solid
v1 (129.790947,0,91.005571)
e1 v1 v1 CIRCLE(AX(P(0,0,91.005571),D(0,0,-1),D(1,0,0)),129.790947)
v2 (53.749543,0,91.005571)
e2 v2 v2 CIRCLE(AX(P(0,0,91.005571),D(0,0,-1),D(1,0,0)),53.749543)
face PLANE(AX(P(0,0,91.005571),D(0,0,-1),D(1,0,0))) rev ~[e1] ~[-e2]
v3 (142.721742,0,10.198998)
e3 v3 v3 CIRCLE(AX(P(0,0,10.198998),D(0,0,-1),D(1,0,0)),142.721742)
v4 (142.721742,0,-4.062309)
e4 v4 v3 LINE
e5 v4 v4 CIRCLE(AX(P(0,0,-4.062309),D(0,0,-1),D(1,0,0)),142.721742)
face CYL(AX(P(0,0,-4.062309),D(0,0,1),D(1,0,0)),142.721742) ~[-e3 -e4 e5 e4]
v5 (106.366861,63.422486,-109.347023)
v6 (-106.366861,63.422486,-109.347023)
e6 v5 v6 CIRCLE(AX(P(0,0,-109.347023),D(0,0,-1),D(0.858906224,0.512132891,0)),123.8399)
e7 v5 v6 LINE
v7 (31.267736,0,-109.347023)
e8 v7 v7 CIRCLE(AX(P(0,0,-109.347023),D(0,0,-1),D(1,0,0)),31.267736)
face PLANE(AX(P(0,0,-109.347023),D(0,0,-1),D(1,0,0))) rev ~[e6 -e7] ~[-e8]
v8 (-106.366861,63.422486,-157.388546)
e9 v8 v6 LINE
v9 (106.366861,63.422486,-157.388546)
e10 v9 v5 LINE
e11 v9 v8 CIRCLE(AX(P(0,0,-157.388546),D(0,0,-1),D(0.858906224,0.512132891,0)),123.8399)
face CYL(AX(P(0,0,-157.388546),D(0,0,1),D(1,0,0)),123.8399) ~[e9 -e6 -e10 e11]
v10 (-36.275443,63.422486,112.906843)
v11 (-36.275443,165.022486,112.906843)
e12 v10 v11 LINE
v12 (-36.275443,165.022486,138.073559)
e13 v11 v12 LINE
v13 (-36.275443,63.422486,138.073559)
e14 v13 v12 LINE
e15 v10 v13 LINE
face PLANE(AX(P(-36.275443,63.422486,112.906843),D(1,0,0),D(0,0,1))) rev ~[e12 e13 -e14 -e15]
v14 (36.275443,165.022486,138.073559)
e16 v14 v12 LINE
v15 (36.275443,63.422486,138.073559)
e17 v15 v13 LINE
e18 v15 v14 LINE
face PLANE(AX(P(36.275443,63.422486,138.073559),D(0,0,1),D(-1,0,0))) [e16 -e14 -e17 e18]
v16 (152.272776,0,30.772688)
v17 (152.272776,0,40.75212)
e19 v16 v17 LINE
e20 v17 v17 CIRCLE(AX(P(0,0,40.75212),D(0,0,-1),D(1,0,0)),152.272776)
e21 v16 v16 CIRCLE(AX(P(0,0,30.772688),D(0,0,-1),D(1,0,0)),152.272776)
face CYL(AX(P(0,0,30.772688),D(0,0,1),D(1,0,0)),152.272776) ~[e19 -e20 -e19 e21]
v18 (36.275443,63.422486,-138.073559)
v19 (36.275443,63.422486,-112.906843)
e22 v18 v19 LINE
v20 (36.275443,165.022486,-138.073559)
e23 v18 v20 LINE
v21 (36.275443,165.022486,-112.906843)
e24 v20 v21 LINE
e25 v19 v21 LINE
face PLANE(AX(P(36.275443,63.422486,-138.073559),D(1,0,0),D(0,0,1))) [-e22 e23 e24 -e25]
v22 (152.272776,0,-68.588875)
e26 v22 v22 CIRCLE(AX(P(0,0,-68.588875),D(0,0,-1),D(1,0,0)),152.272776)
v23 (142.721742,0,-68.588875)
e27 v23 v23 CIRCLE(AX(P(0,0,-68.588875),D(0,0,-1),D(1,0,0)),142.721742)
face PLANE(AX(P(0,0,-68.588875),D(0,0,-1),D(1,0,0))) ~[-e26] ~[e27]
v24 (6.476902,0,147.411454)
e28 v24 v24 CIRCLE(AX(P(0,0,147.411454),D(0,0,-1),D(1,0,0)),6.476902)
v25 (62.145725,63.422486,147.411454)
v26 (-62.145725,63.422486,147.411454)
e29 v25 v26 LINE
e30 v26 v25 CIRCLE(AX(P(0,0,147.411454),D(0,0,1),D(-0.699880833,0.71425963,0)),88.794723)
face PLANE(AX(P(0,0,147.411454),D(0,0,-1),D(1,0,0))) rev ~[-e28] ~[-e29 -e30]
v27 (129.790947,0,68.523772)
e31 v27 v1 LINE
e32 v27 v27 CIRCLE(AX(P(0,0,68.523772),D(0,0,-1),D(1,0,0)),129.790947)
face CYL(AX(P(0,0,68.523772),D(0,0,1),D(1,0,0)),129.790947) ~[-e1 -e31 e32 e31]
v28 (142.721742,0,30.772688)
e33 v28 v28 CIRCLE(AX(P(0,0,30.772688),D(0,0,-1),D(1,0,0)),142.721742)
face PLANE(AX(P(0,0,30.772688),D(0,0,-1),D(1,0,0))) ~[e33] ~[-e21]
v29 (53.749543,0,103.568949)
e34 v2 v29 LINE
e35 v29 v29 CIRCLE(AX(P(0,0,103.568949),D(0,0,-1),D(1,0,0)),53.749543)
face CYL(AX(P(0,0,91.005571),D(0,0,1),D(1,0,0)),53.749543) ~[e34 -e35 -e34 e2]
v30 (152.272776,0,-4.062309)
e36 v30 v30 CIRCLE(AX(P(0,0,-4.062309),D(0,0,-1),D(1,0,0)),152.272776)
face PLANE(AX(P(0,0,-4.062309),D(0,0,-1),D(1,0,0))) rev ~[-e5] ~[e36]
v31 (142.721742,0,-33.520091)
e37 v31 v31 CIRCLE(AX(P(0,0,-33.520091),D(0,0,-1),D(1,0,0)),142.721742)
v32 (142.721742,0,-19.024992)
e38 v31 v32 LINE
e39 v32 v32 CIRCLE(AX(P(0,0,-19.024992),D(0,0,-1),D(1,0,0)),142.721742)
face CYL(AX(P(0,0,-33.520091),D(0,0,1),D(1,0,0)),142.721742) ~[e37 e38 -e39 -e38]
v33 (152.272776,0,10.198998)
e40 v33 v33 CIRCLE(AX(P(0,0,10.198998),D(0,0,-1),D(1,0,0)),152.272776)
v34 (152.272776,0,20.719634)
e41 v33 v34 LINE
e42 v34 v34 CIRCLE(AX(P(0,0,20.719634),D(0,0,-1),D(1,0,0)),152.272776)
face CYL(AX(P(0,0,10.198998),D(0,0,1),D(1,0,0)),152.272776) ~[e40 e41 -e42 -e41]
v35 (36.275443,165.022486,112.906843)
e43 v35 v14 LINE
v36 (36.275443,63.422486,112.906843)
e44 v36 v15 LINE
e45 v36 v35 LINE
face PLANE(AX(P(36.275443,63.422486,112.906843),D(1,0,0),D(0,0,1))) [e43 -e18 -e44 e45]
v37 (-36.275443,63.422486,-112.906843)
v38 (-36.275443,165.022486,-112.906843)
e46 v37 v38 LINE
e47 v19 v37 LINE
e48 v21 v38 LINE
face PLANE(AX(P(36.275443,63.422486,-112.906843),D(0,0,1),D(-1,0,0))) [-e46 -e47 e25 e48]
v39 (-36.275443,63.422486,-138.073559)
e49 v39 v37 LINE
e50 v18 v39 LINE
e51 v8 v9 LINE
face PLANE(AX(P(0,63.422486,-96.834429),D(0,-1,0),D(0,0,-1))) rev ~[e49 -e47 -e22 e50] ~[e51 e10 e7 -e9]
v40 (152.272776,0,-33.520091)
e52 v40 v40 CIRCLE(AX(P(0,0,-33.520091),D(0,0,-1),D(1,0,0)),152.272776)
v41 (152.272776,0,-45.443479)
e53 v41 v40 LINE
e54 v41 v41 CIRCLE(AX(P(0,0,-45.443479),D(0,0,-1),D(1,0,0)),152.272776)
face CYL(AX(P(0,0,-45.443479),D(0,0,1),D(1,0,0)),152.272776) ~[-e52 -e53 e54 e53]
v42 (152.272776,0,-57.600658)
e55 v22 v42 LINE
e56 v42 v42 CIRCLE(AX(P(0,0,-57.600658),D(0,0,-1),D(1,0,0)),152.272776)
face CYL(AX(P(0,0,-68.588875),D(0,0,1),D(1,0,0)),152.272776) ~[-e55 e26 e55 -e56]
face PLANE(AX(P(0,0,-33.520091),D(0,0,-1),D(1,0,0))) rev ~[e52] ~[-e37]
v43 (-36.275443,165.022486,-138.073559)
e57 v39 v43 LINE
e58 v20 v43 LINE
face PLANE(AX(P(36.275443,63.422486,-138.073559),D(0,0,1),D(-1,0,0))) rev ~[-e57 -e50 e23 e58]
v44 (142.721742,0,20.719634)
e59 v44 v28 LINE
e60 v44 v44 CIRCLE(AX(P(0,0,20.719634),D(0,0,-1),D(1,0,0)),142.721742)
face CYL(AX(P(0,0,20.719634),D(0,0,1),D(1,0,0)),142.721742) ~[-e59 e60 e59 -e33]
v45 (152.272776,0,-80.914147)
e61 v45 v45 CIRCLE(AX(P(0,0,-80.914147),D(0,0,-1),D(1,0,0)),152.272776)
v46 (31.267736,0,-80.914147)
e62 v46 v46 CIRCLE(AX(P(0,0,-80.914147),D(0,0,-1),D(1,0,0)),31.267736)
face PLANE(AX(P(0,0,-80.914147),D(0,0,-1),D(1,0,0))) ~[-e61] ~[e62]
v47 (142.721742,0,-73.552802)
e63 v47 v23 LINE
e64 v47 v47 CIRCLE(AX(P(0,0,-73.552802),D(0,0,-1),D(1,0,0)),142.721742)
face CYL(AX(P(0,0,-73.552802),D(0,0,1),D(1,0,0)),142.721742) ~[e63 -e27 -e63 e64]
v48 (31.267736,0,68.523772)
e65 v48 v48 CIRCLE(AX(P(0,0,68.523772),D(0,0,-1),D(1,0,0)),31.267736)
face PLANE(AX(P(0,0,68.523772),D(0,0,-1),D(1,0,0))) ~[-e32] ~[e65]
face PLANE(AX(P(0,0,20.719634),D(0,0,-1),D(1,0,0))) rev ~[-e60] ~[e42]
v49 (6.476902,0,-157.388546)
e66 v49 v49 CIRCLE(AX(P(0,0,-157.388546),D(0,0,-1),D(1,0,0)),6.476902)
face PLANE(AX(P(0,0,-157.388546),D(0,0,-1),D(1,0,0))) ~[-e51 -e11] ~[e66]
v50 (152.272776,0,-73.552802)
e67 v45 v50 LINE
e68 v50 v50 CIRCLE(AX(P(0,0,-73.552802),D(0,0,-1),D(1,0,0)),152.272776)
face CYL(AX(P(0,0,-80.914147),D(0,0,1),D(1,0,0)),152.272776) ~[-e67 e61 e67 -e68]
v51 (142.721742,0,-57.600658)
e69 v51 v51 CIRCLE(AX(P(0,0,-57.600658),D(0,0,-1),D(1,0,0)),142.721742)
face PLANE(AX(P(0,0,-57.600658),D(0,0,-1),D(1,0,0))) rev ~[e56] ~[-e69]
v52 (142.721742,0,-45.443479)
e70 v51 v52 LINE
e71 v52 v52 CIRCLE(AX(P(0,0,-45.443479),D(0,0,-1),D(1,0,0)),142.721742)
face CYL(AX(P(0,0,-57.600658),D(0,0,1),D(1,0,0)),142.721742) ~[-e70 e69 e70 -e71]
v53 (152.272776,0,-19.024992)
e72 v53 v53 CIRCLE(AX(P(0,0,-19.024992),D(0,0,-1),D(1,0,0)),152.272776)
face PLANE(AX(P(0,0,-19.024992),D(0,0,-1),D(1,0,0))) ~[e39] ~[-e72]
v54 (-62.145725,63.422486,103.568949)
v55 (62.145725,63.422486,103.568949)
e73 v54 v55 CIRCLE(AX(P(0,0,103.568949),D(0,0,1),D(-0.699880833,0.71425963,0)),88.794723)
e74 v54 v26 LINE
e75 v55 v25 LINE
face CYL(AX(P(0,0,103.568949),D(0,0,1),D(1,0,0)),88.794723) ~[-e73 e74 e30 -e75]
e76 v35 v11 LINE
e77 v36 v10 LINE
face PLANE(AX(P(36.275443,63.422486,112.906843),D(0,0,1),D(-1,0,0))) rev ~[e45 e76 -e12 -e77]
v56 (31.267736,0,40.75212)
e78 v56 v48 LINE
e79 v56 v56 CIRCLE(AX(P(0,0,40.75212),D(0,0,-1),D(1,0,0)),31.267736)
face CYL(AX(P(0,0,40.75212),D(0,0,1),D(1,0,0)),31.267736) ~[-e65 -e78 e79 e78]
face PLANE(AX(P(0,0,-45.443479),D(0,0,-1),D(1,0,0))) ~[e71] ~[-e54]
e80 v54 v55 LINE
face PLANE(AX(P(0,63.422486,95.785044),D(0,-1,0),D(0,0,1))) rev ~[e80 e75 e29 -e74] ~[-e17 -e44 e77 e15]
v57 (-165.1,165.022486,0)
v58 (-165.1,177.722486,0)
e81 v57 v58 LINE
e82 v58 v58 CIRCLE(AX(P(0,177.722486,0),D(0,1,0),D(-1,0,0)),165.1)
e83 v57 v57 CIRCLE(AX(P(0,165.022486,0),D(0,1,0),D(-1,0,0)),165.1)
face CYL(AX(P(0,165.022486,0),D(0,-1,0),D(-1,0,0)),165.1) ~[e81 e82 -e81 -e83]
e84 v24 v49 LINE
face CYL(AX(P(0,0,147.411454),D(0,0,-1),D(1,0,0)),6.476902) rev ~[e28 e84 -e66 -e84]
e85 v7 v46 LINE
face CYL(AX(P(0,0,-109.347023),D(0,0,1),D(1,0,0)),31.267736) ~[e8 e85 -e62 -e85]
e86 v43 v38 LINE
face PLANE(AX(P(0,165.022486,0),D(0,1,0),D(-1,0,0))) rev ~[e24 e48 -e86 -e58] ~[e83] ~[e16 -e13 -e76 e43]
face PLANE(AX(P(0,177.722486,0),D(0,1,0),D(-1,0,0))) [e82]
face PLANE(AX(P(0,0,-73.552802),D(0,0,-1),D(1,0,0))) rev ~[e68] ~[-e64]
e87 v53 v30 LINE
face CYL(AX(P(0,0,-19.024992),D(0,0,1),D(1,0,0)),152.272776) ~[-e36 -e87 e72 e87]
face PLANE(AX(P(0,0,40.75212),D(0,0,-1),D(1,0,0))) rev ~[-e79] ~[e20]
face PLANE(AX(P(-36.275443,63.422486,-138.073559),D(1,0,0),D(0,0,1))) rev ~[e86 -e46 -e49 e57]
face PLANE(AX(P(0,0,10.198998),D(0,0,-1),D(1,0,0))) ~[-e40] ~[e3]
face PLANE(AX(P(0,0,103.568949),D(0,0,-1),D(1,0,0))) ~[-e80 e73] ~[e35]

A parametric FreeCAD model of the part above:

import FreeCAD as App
import Part
import Sketcher

V = App.Vector
Q = App.Units.Quantity


def add_polygon(sketch, points):
    """Adds a closed chain of lines whose ends are joined by coincident constraints."""
    first, n = sketch.GeometryCount, len(points)
    for a, b in zip(points, points[1:] + points[:1]):
        sketch.addGeometry(Part.LineSegment(App.Vector(*a, 0), App.Vector(*b, 0)), False)
    for i in range(n):
        sketch.addConstraint(Sketcher.Constraint("Coincident", first + i, 2, first + (i + 1) % n, 1))

doc = App.newDocument("Part")
body = doc.addObject("PartDesign::Body", "Body")

sketch1 = body.newObject("Sketcher::SketchObject", "Sketch")
sketch1.AttachmentSupport = (doc.getObject("XZ_Plane"), [""])
sketch1.MapMode = "FlatFace"
add_polygon(sketch1, [(88.8, 147.4), (6.5, 147.4), (6.5, -157.4), (123.8, -157.4), (123.8, -109.3), (31.3, -109.3), (31.3, -80.9), (152.3, -80.9), (152.3, -73.6), (142.7, -73.6), (142.7, -68.6), (152.3, -68.6), (152.3, -57.6), (142.7, -57.6), (142.7, -45.4), (152.3, -45.4), (152.3, -33.5), (142.7, -33.5), (142.7, -19), (152.3, -19), (152.3, -4.1), (142.7, -4.1), (142.7, 10.2), (152.3, 10.2), (152.3, 20.7), (142.7, 20.7), (142.7, 30.8), (152.3, 30.8), (152.3, 40.8), (31.3, 40.8), (31.3, 68.5), (129.8, 68.5), (129.8, 91), (53.7, 91), (53.7, 103.6), (88.8, 103.6)])
sketch1.addConstraint(Sketcher.Constraint("Horizontal", 0))
sketch1.addConstraint(Sketcher.Constraint("Vertical", 1))
sketch1.addConstraint(Sketcher.Constraint("Horizontal", 2))
sketch1.addConstraint(Sketcher.Constraint("Vertical", 3))
sketch1.addConstraint(Sketcher.Constraint("Horizontal", 4))
sketch1.addConstraint(Sketcher.Constraint("Vertical", 5))
sketch1.addConstraint(Sketcher.Constraint("Horizontal", 6))
sketch1.addConstraint(Sketcher.Constraint("Vertical", 7))
sketch1.addConstraint(Sketcher.Constraint("Horizontal", 8))
sketch1.addConstraint(Sketcher.Constraint("Vertical", 9))
sketch1.addConstraint(Sketcher.Constraint("Horizontal", 10))
sketch1.addConstraint(Sketcher.Constraint("Vertical", 11))
sketch1.addConstraint(Sketcher.Constraint("Horizontal", 12))
sketch1.addConstraint(Sketcher.Constraint("Vertical", 13))
sketch1.addConstraint(Sketcher.Constraint("Horizontal", 14))
sketch1.addConstraint(Sketcher.Constraint("Vertical", 15))
sketch1.addConstraint(Sketcher.Constraint("Horizontal", 16))
sketch1.addConstraint(Sketcher.Constraint("Vertical", 17))
sketch1.addConstraint(Sketcher.Constraint("Horizontal", 18))
sketch1.addConstraint(Sketcher.Constraint("Vertical", 19))
sketch1.addConstraint(Sketcher.Constraint("Horizontal", 20))
sketch1.addConstraint(Sketcher.Constraint("Vertical", 21))
sketch1.addConstraint(Sketcher.Constraint("Horizontal", 22))
sketch1.addConstraint(Sketcher.Constraint("Vertical", 23))
sketch1.addConstraint(Sketcher.Constraint("Horizontal", 24))
sketch1.addConstraint(Sketcher.Constraint("Vertical", 25))
sketch1.addConstraint(Sketcher.Constraint("Horizontal", 26))
sketch1.addConstraint(Sketcher.Constraint("Vertical", 27))
sketch1.addConstraint(Sketcher.Constraint("Horizontal", 28))
sketch1.addConstraint(Sketcher.Constraint("Vertical", 29))
sketch1.addConstraint(Sketcher.Constraint("Horizontal", 30))
sketch1.addConstraint(Sketcher.Constraint("Vertical", 31))
sketch1.addConstraint(Sketcher.Constraint("Horizontal", 32))
sketch1.addConstraint(Sketcher.Constraint("Vertical", 33))
sketch1.addConstraint(Sketcher.Constraint("Horizontal", 34))
sketch1.addConstraint(Sketcher.Constraint("Vertical", 35))
sketch1.addConstraint(Sketcher.Constraint("Vertical", 7, 2, 10, 2))
sketch1.addConstraint(Sketcher.Constraint("Vertical", 9, 2, 12, 2))
sketch1.addConstraint(Sketcher.Constraint("Vertical", 11, 2, 14, 2))
sketch1.addConstraint(Sketcher.Constraint("Vertical", 13, 2, 16, 2))
sketch1.addConstraint(Sketcher.Constraint("Vertical", 15, 2, 18, 2))
sketch1.addConstraint(Sketcher.Constraint("Vertical", 17, 2, 20, 2))
sketch1.addConstraint(Sketcher.Constraint("Vertical", 19, 2, 22, 2))
sketch1.addConstraint(Sketcher.Constraint("Vertical", 21, 2, 24, 2))
sketch1.addConstraint(Sketcher.Constraint("Vertical", 23, 2, 26, 2))
sketch1.addConstraint(Sketcher.Constraint("Vertical", 5, 2, 28, 2))
sketch1.addConstraint(Sketcher.Constraint("DistanceY", 1, 2, 1, 1, Q("12 in")))
sketch1.addConstraint(Sketcher.Constraint("DistanceX", 2, 1, 2, 2, 117.362998))
sketch1.addConstraint(Sketcher.Constraint("DistanceY", 17, 1, 17, 2, 14.495099))
sketch1.addConstraint(Sketcher.Constraint("DistanceY", 31, 1, 31, 2, 22.481799))
sketch1.addConstraint(Sketcher.Constraint("DistanceX", 0, 2, 0, 1, 82.317821))
sketch1.addConstraint(Sketcher.Constraint("DistanceX", 6, 1, 6, 2, 121.00504))
sketch1.addConstraint(Sketcher.Constraint("DistanceX", 30, 1, 30, 2, 98.523211))
sketch1.addConstraint(Sketcher.Constraint("DistanceX", 34, 1, 34, 2, 35.04518))
sketch1.addConstraint(Sketcher.Constraint("DistanceY", 13, 1, 13, 2, 12.157179))
sketch1.addConstraint(Sketcher.Constraint("DistanceY", 15, 1, 15, 2, 11.923388))
sketch1.addConstraint(Sketcher.Constraint("DistanceY", 27, 1, 27, 2, 9.979432))
sketch1.addConstraint(Sketcher.Constraint("DistanceY", 29, 1, 29, 2, 27.771652))
sketch1.addConstraint(Sketcher.Constraint("DistanceX", -1, 1, 2, 2, 123.8399))
sketch1.addConstraint(Sketcher.Constraint("DistanceY", 7, 2, -1, 1, 73.552802))
sketch1.addConstraint(Sketcher.Constraint("DistanceY", 1, 2, 5, 2, 76.474399))
sketch1.addConstraint(Sketcher.Constraint("DistanceX", 4, 2, 4, 1, 92.572164))
sketch1.addConstraint(Sketcher.Constraint("DistanceX", 8, 2, 8, 1, 9.551034))
sketch1.addConstraint(Sketcher.Constraint("DistanceY", 3, 1, 3, 2, 48.041523))
sketch1.addConstraint(Sketcher.Constraint("DistanceY", 7, 1, 7, 2, 7.361345))
sketch1.addConstraint(Sketcher.Constraint("DistanceY", 9, 1, 9, 2, 4.963927))
sketch1.addConstraint(Sketcher.Constraint("DistanceY", 11, 1, 11, 2, 10.988217))
sketch1.addConstraint(Sketcher.Constraint("DistanceY", 19, 1, 19, 2, 14.962683))
sketch1.addConstraint(Sketcher.Constraint("DistanceY", 21, 1, 21, 2, 14.261307))
sketch1.addConstraint(Sketcher.Constraint("DistanceY", 23, 1, 23, 2, 10.520636))
sketch1.addConstraint(Sketcher.Constraint("DistanceY", 25, 1, 25, 2, 10.053054))
sketch1.addConstraint(Sketcher.Constraint("DistanceY", 33, 1, 33, 2, 12.563378))
revolution = body.newObject("PartDesign::Revolution", "Revolution")
revolution.Profile = sketch1
revolution.ReferenceAxis = (sketch1, ["V_Axis"])
revolution.Angle = 360

sketch2 = body.newObject("Sketcher::SketchObject", "Sketch001")
sketch2.AttachmentSupport = (doc.getObject("YZ_Plane"), [""])
sketch2.MapMode = "FlatFace"
add_polygon(sketch2, [(63, 199), (63, 96), (159, 96), (159, 199)])
add_polygon(sketch2, [(159, -97), (63, -97), (63, -198), (159, -197)])
sketch2.addConstraint(Sketcher.Constraint("Vertical", 0))
sketch2.addConstraint(Sketcher.Constraint("Horizontal", 1))
sketch2.addConstraint(Sketcher.Constraint("Vertical", 2))
sketch2.addConstraint(Sketcher.Constraint("Horizontal", 3))
sketch2.addConstraint(Sketcher.Constraint("Horizontal", 4))
sketch2.addConstraint(Sketcher.Constraint("Vertical", 5))
sketch2.addConstraint(Sketcher.Constraint("Vertical", 7))
sketch2.addConstraint(Sketcher.Constraint("Vertical", 3, 2, 4, 2))
sketch2.addConstraint(Sketcher.Constraint("Vertical", 2, 2, 6, 2))
sketch2.addConstraint(Sketcher.Constraint("DistanceX", 1, 1, 1, 2, 95.933378))
sketch2.addConstraint(Sketcher.Constraint("DistanceY", 5, 2, 0, 2, 294.0908))
sketch2.addConstraint(Sketcher.Constraint("DistanceY", 0, 2, 0, 1, 103.010424))
sketch2.addConstraint(Sketcher.Constraint("DistanceY", 5, 2, 5, 1, 101.471327))
sketch2.addConstraint(Sketcher.Constraint("DistanceY", 7, 1, 7, 2, 99.867366))
sketch2.addConstraint(Sketcher.Constraint("DistanceY", -1, 1, 2, 2, 198.795468))
sketch2.addConstraint(Sketcher.Constraint("DistanceX", -1, 1, 0, 2, 63.422486))
pocket1 = body.newObject("PartDesign::Pocket", "Pocket")
pocket1.Profile = sketch2
pocket1.Length = Q("10 in")
pocket1.Midplane = True

sketch3 = body.newObject("Sketcher::SketchObject", "Sketch002")
sketch3.AttachmentSupport = (doc.getObject("XZ_Plane"), [""])
sketch3.MapMode = "FlatFace"
sketch3.AttachmentOffset = App.Placement(V(0, 0, -63.422486), App.Rotation())
add_polygon(sketch3, [(36, 138), (36, 113), (-36, 113), (-36, 138)])
add_polygon(sketch3, [(36, -113), (36, -138), (-36, -138), (-36, -113)])
sketch3.addConstraint(Sketcher.Constraint("Vertical", 0))
sketch3.addConstraint(Sketcher.Constraint("Horizontal", 1))
sketch3.addConstraint(Sketcher.Constraint("Vertical", 2))
sketch3.addConstraint(Sketcher.Constraint("Horizontal", 3))
sketch3.addConstraint(Sketcher.Constraint("Vertical", 4))
sketch3.addConstraint(Sketcher.Constraint("Horizontal", 5))
sketch3.addConstraint(Sketcher.Constraint("Vertical", 6))
sketch3.addConstraint(Sketcher.Constraint("Horizontal", 7))
sketch3.addConstraint(Sketcher.Constraint("Symmetric", 2, 2, 4, 2, -1, 1))
sketch3.addConstraint(Sketcher.Constraint("Symmetric", 0, 2, 6, 2, -1, 1))
sketch3.addConstraint(Sketcher.Constraint("Vertical", 3, 2, 4, 2))
sketch3.addConstraint(Sketcher.Constraint("DistanceY", 4, 2, 0, 2, 250.980402))
sketch3.addConstraint(Sketcher.Constraint("DistanceX", 1, 2, 1, 1, 72.550886))
sketch3.addConstraint(Sketcher.Constraint("DistanceY", 0, 2, 0, 1, 25.166716))
pad1 = body.newObject("PartDesign::Pad", "Pad")
pad1.Profile = sketch3
pad1.Length = Q("4 in")
pad1.Reversed = True

sketch4 = body.newObject("Sketcher::SketchObject", "Sketch003")
sketch4.AttachmentSupport = (doc.getObject("XZ_Plane"), [""])
sketch4.MapMode = "FlatFace"
sketch4.AttachmentOffset = App.Placement(V(0, 0, -165.022486), App.Rotation())
sketch4.addGeometry(Part.Circle(V(0, 0, 0), V(0, 0, 1), 165), False)
sketch4.addConstraint(Sketcher.Constraint("Coincident", 0, 3, -1, 1))
sketch4.addConstraint(Sketcher.Constraint("Diameter", 0, Q("13 in")))
pad2 = body.newObject("PartDesign::Pad", "Pad001")
pad2.Profile = sketch4
pad2.Length = Q("0.5 in")
pad2.Reversed = True

doc.recompute()
